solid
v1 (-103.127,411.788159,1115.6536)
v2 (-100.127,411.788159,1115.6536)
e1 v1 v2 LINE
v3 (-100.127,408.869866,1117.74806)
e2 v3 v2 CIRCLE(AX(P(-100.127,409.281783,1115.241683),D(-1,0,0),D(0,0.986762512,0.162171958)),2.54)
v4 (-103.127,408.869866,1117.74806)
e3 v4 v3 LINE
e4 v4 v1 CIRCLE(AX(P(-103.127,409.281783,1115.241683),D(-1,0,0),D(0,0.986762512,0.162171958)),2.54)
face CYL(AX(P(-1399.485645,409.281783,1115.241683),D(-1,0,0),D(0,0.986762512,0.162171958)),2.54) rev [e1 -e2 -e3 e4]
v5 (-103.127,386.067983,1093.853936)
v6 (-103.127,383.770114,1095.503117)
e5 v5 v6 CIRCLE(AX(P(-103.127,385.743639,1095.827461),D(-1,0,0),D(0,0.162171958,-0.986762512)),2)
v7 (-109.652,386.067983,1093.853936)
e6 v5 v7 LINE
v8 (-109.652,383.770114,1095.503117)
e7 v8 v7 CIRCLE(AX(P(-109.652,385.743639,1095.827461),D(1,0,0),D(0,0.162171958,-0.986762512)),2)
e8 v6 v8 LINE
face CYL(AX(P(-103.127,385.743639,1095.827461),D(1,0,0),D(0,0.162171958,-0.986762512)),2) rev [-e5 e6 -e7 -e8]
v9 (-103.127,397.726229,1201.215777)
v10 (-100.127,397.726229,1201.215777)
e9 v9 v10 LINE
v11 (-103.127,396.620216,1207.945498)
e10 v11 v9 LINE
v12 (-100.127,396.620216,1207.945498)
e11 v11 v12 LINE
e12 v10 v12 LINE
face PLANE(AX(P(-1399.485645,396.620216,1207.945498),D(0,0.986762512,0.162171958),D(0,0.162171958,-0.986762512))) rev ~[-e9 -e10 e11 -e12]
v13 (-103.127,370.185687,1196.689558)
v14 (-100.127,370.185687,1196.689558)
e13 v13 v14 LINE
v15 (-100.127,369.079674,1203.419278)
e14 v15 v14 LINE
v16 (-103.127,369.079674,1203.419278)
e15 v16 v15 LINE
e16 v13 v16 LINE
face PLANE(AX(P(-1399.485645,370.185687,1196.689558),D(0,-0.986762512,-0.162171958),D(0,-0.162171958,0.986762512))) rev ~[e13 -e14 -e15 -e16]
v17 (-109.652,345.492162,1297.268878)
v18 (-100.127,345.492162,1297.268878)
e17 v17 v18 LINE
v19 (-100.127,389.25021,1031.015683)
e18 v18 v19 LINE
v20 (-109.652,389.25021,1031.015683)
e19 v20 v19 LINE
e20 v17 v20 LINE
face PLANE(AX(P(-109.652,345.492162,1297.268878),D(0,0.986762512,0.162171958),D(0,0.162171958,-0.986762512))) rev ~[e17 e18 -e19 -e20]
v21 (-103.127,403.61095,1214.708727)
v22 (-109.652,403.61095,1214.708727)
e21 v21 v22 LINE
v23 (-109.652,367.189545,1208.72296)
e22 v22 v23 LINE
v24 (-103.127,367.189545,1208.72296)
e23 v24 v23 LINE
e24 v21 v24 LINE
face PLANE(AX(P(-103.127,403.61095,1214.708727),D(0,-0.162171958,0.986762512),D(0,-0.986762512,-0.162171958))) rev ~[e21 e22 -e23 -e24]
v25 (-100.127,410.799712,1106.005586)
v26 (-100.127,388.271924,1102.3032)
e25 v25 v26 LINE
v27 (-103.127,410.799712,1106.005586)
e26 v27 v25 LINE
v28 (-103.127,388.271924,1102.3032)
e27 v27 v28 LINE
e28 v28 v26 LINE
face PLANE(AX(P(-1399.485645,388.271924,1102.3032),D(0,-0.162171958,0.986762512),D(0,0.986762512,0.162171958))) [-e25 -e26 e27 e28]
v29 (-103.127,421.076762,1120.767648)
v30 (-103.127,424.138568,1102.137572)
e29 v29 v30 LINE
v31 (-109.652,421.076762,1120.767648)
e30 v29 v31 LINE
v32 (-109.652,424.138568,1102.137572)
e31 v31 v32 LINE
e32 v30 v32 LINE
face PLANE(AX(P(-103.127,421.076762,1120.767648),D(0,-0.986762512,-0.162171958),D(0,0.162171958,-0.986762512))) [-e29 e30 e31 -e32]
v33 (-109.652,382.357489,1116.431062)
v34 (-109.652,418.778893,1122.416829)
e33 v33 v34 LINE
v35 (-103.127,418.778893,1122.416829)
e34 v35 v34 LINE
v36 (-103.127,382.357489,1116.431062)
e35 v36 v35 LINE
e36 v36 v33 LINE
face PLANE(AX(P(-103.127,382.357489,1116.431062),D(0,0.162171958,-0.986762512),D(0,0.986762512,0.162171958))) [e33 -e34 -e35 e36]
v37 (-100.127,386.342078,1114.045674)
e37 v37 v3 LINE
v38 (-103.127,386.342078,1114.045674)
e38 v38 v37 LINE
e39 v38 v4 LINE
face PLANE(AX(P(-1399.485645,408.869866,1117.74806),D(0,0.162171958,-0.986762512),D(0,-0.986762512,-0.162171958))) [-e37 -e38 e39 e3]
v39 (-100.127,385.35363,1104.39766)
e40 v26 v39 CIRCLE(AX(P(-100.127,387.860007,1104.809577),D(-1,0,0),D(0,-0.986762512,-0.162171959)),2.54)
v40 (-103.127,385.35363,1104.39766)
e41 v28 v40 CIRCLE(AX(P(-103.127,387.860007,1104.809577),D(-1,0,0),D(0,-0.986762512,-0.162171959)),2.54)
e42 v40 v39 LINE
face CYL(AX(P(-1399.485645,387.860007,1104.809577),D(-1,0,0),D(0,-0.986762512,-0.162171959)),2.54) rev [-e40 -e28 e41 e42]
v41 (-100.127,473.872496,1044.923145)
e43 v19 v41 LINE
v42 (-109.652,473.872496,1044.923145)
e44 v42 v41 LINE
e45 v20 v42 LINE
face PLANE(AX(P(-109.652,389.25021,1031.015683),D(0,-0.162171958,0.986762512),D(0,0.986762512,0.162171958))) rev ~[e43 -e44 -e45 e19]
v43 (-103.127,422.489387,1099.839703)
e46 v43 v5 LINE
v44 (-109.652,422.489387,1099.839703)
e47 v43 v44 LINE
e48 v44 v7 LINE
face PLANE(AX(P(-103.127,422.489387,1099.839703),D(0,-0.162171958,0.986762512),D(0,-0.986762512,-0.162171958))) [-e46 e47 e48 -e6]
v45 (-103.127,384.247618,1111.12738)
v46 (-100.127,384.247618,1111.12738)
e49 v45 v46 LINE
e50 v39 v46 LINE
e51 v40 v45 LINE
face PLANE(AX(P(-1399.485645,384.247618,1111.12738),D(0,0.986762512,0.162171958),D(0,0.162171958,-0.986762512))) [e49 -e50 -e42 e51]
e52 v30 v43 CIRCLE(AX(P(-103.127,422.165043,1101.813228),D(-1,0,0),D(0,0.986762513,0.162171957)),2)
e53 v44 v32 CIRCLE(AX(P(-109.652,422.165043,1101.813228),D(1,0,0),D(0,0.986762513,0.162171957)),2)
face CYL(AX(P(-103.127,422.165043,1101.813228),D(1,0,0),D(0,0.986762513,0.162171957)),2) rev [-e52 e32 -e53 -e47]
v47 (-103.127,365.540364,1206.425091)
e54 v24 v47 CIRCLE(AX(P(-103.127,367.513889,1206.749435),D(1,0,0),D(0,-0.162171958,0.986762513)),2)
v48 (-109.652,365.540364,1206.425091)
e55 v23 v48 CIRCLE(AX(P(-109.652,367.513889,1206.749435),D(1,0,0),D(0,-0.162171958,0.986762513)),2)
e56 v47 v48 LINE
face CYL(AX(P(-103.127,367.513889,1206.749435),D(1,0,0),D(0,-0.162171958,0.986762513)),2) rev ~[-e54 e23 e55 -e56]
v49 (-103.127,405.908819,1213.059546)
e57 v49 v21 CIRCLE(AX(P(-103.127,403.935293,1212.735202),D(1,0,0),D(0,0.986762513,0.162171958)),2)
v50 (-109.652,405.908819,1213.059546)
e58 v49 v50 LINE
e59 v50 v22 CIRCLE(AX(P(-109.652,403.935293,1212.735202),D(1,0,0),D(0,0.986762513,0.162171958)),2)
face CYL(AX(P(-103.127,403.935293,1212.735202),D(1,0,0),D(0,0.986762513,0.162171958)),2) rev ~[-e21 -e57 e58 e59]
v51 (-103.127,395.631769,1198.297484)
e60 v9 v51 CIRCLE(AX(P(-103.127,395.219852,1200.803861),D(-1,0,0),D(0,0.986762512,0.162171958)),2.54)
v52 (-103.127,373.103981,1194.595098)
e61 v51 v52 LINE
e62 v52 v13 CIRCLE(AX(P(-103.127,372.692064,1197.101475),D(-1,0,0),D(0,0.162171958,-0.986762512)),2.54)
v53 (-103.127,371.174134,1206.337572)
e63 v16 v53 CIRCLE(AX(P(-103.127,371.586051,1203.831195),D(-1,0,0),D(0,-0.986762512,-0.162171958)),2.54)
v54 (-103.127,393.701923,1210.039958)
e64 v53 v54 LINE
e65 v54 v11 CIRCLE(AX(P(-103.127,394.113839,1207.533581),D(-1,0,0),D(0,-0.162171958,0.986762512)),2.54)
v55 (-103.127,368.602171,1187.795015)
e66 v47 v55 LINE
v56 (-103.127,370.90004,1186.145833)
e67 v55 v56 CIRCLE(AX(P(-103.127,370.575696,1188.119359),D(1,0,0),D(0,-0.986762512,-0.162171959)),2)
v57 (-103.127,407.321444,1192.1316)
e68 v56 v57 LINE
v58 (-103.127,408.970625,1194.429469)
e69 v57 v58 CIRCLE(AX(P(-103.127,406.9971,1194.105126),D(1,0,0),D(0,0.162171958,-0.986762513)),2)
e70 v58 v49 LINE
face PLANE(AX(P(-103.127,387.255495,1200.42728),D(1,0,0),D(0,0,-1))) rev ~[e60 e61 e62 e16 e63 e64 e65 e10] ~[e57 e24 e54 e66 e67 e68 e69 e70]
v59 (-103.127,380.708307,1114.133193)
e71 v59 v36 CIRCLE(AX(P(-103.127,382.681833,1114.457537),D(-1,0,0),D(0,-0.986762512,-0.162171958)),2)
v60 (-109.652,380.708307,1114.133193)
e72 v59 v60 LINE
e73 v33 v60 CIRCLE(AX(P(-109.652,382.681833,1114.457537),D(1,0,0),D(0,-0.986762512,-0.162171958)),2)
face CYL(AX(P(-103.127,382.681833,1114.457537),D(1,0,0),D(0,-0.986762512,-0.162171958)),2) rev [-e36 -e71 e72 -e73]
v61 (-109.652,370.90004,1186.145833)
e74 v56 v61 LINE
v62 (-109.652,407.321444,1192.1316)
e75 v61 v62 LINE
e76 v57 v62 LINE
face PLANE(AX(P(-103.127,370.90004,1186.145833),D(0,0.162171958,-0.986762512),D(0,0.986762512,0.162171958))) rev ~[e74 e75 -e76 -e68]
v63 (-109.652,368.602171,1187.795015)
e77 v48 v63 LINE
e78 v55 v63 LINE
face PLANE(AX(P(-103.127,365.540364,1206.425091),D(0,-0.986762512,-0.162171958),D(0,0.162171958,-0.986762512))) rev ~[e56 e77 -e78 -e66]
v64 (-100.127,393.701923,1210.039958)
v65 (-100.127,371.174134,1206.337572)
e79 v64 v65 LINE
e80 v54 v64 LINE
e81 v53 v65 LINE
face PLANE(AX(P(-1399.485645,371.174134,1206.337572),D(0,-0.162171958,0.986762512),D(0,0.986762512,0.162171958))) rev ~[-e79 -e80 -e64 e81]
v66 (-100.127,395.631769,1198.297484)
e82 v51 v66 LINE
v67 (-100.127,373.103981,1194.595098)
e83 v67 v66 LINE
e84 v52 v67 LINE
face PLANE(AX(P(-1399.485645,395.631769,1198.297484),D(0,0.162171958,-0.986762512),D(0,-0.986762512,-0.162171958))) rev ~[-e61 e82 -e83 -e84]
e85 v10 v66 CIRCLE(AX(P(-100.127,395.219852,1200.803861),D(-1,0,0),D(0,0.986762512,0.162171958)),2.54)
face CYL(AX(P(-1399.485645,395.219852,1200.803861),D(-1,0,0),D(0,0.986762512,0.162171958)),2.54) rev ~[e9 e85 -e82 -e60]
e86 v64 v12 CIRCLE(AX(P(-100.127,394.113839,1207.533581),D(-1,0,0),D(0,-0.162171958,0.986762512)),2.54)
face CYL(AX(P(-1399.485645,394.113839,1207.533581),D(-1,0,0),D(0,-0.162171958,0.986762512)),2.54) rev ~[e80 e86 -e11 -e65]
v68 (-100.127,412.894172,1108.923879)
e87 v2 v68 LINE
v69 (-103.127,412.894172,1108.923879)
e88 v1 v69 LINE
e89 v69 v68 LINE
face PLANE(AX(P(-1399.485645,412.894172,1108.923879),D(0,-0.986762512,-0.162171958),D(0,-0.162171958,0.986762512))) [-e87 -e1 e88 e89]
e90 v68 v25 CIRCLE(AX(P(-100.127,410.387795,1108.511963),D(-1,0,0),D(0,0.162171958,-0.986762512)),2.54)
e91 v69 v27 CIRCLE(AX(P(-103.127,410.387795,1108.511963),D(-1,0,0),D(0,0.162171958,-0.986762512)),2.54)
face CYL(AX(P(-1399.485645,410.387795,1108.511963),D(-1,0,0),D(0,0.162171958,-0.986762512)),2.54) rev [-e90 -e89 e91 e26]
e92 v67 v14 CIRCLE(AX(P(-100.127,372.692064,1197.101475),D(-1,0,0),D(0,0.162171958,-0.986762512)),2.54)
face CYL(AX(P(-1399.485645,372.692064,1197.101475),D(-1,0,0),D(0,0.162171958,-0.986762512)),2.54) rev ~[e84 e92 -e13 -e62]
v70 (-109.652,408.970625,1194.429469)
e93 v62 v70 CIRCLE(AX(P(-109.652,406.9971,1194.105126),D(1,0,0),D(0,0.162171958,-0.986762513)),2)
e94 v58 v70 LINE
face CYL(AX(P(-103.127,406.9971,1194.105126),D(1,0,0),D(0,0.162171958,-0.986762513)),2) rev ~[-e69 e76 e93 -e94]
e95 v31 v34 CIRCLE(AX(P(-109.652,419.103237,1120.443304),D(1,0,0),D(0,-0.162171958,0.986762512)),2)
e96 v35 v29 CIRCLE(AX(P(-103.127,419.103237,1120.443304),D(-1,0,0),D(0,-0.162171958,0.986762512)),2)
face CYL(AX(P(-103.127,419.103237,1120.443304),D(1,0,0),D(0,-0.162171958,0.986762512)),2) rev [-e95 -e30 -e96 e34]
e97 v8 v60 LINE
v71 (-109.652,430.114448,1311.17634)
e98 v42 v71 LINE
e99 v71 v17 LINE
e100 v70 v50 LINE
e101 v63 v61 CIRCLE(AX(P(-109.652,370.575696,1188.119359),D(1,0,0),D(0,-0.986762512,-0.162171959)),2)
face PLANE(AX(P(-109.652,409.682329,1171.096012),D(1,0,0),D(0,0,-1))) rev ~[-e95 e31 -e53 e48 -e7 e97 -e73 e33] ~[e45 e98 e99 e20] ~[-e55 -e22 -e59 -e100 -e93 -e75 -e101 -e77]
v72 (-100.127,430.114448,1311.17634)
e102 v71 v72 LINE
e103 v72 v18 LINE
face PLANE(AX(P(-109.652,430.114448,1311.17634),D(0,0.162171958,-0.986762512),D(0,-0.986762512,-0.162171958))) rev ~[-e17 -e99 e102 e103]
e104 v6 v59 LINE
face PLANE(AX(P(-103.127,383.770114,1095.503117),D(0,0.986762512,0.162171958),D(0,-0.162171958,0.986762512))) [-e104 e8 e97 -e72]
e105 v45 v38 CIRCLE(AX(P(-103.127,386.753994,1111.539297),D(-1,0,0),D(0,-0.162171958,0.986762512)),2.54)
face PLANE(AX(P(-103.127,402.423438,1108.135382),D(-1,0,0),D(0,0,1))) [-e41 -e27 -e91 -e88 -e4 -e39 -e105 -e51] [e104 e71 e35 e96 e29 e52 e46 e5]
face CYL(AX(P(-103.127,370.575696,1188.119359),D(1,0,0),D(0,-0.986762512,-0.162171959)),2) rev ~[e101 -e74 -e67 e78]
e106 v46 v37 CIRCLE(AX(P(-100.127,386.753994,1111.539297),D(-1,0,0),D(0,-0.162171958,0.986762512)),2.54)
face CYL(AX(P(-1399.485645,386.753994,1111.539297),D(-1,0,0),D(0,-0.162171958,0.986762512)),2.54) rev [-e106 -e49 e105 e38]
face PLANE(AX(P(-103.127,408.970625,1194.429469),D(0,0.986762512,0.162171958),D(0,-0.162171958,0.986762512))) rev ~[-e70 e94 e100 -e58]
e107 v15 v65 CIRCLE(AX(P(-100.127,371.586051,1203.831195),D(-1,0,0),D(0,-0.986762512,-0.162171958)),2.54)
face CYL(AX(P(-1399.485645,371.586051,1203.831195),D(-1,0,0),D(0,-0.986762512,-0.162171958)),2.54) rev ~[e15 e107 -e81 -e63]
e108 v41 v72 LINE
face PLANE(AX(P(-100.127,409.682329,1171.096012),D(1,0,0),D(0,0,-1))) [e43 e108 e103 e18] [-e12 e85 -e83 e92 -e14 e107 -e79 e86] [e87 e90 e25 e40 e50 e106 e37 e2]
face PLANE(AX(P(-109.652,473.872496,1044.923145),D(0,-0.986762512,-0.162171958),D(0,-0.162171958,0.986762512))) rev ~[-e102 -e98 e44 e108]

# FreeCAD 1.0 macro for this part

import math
import FreeCAD as App
import Part
import Sketcher

V = App.Vector
Q = App.Units.Quantity


def add_polygon(sketch, points):
    """Adds a closed chain of lines whose ends are joined by coincident constraints."""
    first, n = sketch.GeometryCount, len(points)
    for a, b in zip(points, points[1:] + points[:1]):
        sketch.addGeometry(Part.LineSegment(App.Vector(*a, 0), App.Vector(*b, 0)), False)
    for i in range(n):
        sketch.addConstraint(Sketcher.Constraint("Coincident", first + i, 2, first + (i + 1) % n, 1))

doc = App.newDocument("Part")
body = doc.addObject("PartDesign::Body", "Body")

# Sketch on YZ plane
sketch1 = doc.addObject("Sketcher::SketchObject", "Sketch")
body.addObject(sketch1)
sketch1.AttachmentSupport = (doc.YZ_Plane, [""])
sketch1.MapMode = "FlatFace"
sketch1.AttachmentOffset = App.Placement(V(0, 0, -109.652), App.Rotation())
add_polygon(sketch1, [(474, 1045), (430, 1311), (345, 1297), (389, 1031)])  # lines 0-3
sketch1.addConstraint(Sketcher.Constraint("Perpendicular", 0, 1))
sketch1.addConstraint(Sketcher.Constraint("Perpendicular", 1, 2))
sketch1.addConstraint(Sketcher.Constraint("Perpendicular", 2, 3))
sketch1.addConstraint(Sketcher.Constraint("Distance", 0, 269.825))
sketch1.addConstraint(Sketcher.Constraint("Distance", 1, 85.7575))
sketch1.addConstraint(Sketcher.Constraint("DistanceY", -1, 1, 0, 2, 1311.17634))
sketch1.addConstraint(Sketcher.Constraint("DistanceX", -1, 1, 1, 2, 345.492162))
sketch1.addConstraint(Sketcher.Constraint("DistanceY", -1, 1, 1, 2, 1297.268878))
pad1 = doc.addObject("PartDesign::Pad", "Pad")
body.addObject(pad1)
pad1.Profile = sketch1
pad1.Length = Q("0.375 in")

# Sketch on YZ plane
sketch2 = doc.addObject("Sketcher::SketchObject", "Sketch001")
body.addObject(sketch2)
sketch2.AttachmentSupport = (doc.YZ_Plane, [""])
sketch2.MapMode = "FlatFace"
sketch2.addGeometry(Part.LineSegment(V(412.9, 1108.9, 0), V(411.8, 1115.7, 0)), False)
sketch2.addGeometry(Part.ArcOfCircle(Part.Circle(V(409.3, 1115.2, 0), V(0, 0, 1), 2.5), math.radians(9), math.radians(99)), False)
sketch2.addGeometry(Part.LineSegment(V(408.9, 1117.7, 0), V(386.3, 1114, 0)), False)
sketch2.addGeometry(Part.ArcOfCircle(Part.Circle(V(386.8, 1111.5, 0), V(0, 0, 1), 2.5), math.radians(99), math.radians(189)), False)
sketch2.addGeometry(Part.LineSegment(V(384.2, 1111.1, 0), V(385.4, 1104.4, 0)), False)
sketch2.addGeometry(Part.ArcOfCircle(Part.Circle(V(387.9, 1104.8, 0), V(0, 0, 1), 2.5), math.radians(-171), math.radians(-81)), False)
sketch2.addGeometry(Part.LineSegment(V(388.3, 1102.3, 0), V(410.8, 1106, 0)), False)
sketch2.addGeometry(Part.ArcOfCircle(Part.Circle(V(410.4, 1108.5, 0), V(0, 0, 1), 2.5), math.radians(-81), math.radians(9)), False)
sketch2.addGeometry(Part.LineSegment(V(393.7, 1210, 0), V(371.2, 1206.3, 0)), False)
sketch2.addGeometry(Part.ArcOfCircle(Part.Circle(V(371.6, 1203.8, 0), V(0, 0, 1), 2.5), math.radians(99), math.radians(189)), False)
sketch2.addGeometry(Part.LineSegment(V(369.1, 1203.4, 0), V(370.2, 1196.7, 0)), False)
sketch2.addGeometry(Part.ArcOfCircle(Part.Circle(V(372.7, 1197.1, 0), V(0, 0, 1), 2.5), math.radians(-171), math.radians(-81)), False)
sketch2.addGeometry(Part.LineSegment(V(373.1, 1194.6, 0), V(395.6, 1198.3, 0)), False)
sketch2.addGeometry(Part.ArcOfCircle(Part.Circle(V(395.2, 1200.8, 0), V(0, 0, 1), 2.5), math.radians(-81), math.radians(9)), False)
sketch2.addGeometry(Part.LineSegment(V(397.7, 1201.2, 0), V(396.6, 1207.9, 0)), False)
sketch2.addGeometry(Part.ArcOfCircle(Part.Circle(V(394.1, 1207.5, 0), V(0, 0, 1), 2.5), math.radians(9), math.radians(99)), False)
sketch2.addConstraint(Sketcher.Constraint("Tangent", 0, 2, 1, 1))
sketch2.addConstraint(Sketcher.Constraint("Tangent", 1, 2, 2, 1))
sketch2.addConstraint(Sketcher.Constraint("Tangent", 2, 2, 3, 1))
sketch2.addConstraint(Sketcher.Constraint("Tangent", 3, 2, 4, 1))
sketch2.addConstraint(Sketcher.Constraint("Tangent", 4, 2, 5, 1))
sketch2.addConstraint(Sketcher.Constraint("Tangent", 5, 2, 6, 1))
sketch2.addConstraint(Sketcher.Constraint("Tangent", 6, 2, 7, 1))
sketch2.addConstraint(Sketcher.Constraint("Tangent", 7, 2, 0, 1))
sketch2.addConstraint(Sketcher.Constraint("Tangent", 8, 2, 9, 1))
sketch2.addConstraint(Sketcher.Constraint("Tangent", 9, 2, 10, 1))
sketch2.addConstraint(Sketcher.Constraint("Tangent", 10, 2, 11, 1))
sketch2.addConstraint(Sketcher.Constraint("Tangent", 11, 2, 12, 1))
sketch2.addConstraint(Sketcher.Constraint("Tangent", 12, 2, 13, 1))
sketch2.addConstraint(Sketcher.Constraint("Tangent", 13, 2, 14, 1))
sketch2.addConstraint(Sketcher.Constraint("Tangent", 14, 2, 15, 1))
sketch2.addConstraint(Sketcher.Constraint("Tangent", 15, 2, 8, 1))
sketch2.addConstraint(Sketcher.Constraint("Equal", 1, 3))
sketch2.addConstraint(Sketcher.Constraint("Equal", 3, 5))
sketch2.addConstraint(Sketcher.Constraint("Equal", 5, 7))
sketch2.addConstraint(Sketcher.Constraint("Equal", 7, 9))
sketch2.addConstraint(Sketcher.Constraint("Equal", 9, 11))
sketch2.addConstraint(Sketcher.Constraint("Equal", 11, 13))
sketch2.addConstraint(Sketcher.Constraint("Equal", 13, 15))
sketch2.addConstraint(Sketcher.Constraint("Perpendicular", 0, 2))
sketch2.addConstraint(Sketcher.Constraint("Perpendicular", 2, 4))
sketch2.addConstraint(Sketcher.Constraint("Perpendicular", 4, 6))
sketch2.addConstraint(Sketcher.Constraint("Parallel", 6, 8))
sketch2.addConstraint(Sketcher.Constraint("Perpendicular", 8, 10))
sketch2.addConstraint(Sketcher.Constraint("Perpendicular", 10, 12))
sketch2.addConstraint(Sketcher.Constraint("Perpendicular", 12, 14))
sketch2.addConstraint(Sketcher.Constraint("Equal", 6, 8))
sketch2.addConstraint(Sketcher.Constraint("Equal", 4, 10))
sketch2.addConstraint(Sketcher.Constraint("Radius", 1, Q("0.1 in")))
sketch2.addConstraint(Sketcher.Constraint("DistanceX", -1, 1, 7, 3, Q("16.1569998 in")))
sketch2.addConstraint(Sketcher.Constraint("Distance", 0, 6.82))
sketch2.addConstraint(Sketcher.Constraint("Distance", 2, 22.83))
sketch2.addConstraint(Sketcher.Constraint("DistanceY", -1, 1, 0, 2, 1115.6536))
sketch2.addConstraint(Sketcher.Constraint("DistanceY", -1, 1, 5, 2, 1102.3032))
sketch2.addConstraint(Sketcher.Constraint("DistanceX", -1, 1, 9, 3, 371.586051))
sketch2.addConstraint(Sketcher.Constraint("DistanceY", -1, 1, 13, 3, 1200.803861))
pocket1 = doc.addObject("PartDesign::Pocket", "Pocket")
body.addObject(pocket1)
pocket1.Profile = sketch2
pocket1.Type = "ThroughAll"
pocket1.Midplane = True

# Sketch on YZ plane
sketch3 = doc.addObject("Sketcher::SketchObject", "Sketch002")
body.addObject(sketch3)
sketch3.AttachmentSupport = (doc.YZ_Plane, [""])
sketch3.MapMode = "FlatFace"
sketch3.AttachmentOffset = App.Placement(V(0, 0, -103.127), App.Rotation())
sketch3.addGeometry(Part.LineSegment(V(380.7, 1114.1, 0), V(383.8, 1095.5, 0)), False)
sketch3.addGeometry(Part.ArcOfCircle(Part.Circle(V(385.7, 1095.8, 0), V(0, 0, 1), 2), math.radians(-171), math.radians(-81)), False)
sketch3.addGeometry(Part.LineSegment(V(386.1, 1093.9, 0), V(422.5, 1099.8, 0)), False)
sketch3.addGeometry(Part.ArcOfCircle(Part.Circle(V(422.2, 1101.8, 0), V(0, 0, 1), 2), math.radians(-81), math.radians(9)), False)
sketch3.addGeometry(Part.LineSegment(V(424.1, 1102.1, 0), V(421.1, 1120.8, 0)), False)
sketch3.addGeometry(Part.ArcOfCircle(Part.Circle(V(419.1, 1120.4, 0), V(0, 0, 1), 2), math.radians(9), math.radians(99)), False)
sketch3.addGeometry(Part.LineSegment(V(418.8, 1122.4, 0), V(382.4, 1116.4, 0)), False)
sketch3.addGeometry(Part.ArcOfCircle(Part.Circle(V(382.7, 1114.5, 0), V(0, 0, 1), 2), math.radians(99), math.radians(189)), False)
sketch3.addGeometry(Part.LineSegment(V(409, 1194.4, 0), V(405.9, 1213.1, 0)), False)
sketch3.addGeometry(Part.ArcOfCircle(Part.Circle(V(403.9, 1212.7, 0), V(0, 0, 1), 2), math.radians(9), math.radians(99)), False)
sketch3.addGeometry(Part.LineSegment(V(403.6, 1214.7, 0), V(367.2, 1208.7, 0)), False)
sketch3.addGeometry(Part.ArcOfCircle(Part.Circle(V(367.5, 1206.7, 0), V(0, 0, 1), 2), math.radians(99), math.radians(189)), False)
sketch3.addGeometry(Part.LineSegment(V(365.5, 1206.4, 0), V(368.6, 1187.8, 0)), False)
sketch3.addGeometry(Part.ArcOfCircle(Part.Circle(V(370.6, 1188.1, 0), V(0, 0, 1), 2), math.radians(-171), math.radians(-81)), False)
sketch3.addGeometry(Part.LineSegment(V(370.9, 1186.1, 0), V(407.3, 1192.1, 0)), False)
sketch3.addGeometry(Part.ArcOfCircle(Part.Circle(V(407, 1194.1, 0), V(0, 0, 1), 2), math.radians(-81), math.radians(9)), False)
sketch3.addConstraint(Sketcher.Constraint("Tangent", 0, 2, 1, 1))
sketch3.addConstraint(Sketcher.Constraint("Tangent", 1, 2, 2, 1))
sketch3.addConstraint(Sketcher.Constraint("Tangent", 2, 2, 3, 1))
sketch3.addConstraint(Sketcher.Constraint("Tangent", 3, 2, 4, 1))
sketch3.addConstraint(Sketcher.Constraint("Tangent", 4, 2, 5, 1))
sketch3.addConstraint(Sketcher.Constraint("Tangent", 5, 2, 6, 1))
sketch3.addConstraint(Sketcher.Constraint("Tangent", 6, 2, 7, 1))
sketch3.addConstraint(Sketcher.Constraint("Tangent", 7, 2, 0, 1))
sketch3.addConstraint(Sketcher.Constraint("Tangent", 8, 2, 9, 1))
sketch3.addConstraint(Sketcher.Constraint("Tangent", 9, 2, 10, 1))
sketch3.addConstraint(Sketcher.Constraint("Tangent", 10, 2, 11, 1))
sketch3.addConstraint(Sketcher.Constraint("Tangent", 11, 2, 12, 1))
sketch3.addConstraint(Sketcher.Constraint("Tangent", 12, 2, 13, 1))
sketch3.addConstraint(Sketcher.Constraint("Tangent", 13, 2, 14, 1))
sketch3.addConstraint(Sketcher.Constraint("Tangent", 14, 2, 15, 1))
sketch3.addConstraint(Sketcher.Constraint("Tangent", 15, 2, 8, 1))
sketch3.addConstraint(Sketcher.Constraint("Equal", 1, 3))
sketch3.addConstraint(Sketcher.Constraint("Equal", 3, 5))
sketch3.addConstraint(Sketcher.Constraint("Equal", 5, 7))
sketch3.addConstraint(Sketcher.Constraint("Equal", 7, 9))
sketch3.addConstraint(Sketcher.Constraint("Equal", 9, 11))
sketch3.addConstraint(Sketcher.Constraint("Equal", 11, 13))
sketch3.addConstraint(Sketcher.Constraint("Equal", 13, 15))
sketch3.addConstraint(Sketcher.Constraint("Perpendicular", 0, 2))
sketch3.addConstraint(Sketcher.Constraint("Perpendicular", 2, 4))
sketch3.addConstraint(Sketcher.Constraint("Perpendicular", 4, 6))
sketch3.addConstraint(Sketcher.Constraint("Perpendicular", 6, 8))
sketch3.addConstraint(Sketcher.Constraint("Perpendicular", 8, 10))
sketch3.addConstraint(Sketcher.Constraint("Perpendicular", 10, 12))
sketch3.addConstraint(Sketcher.Constraint("Perpendicular", 12, 14))
sketch3.addConstraint(Sketcher.Constraint("Equal", 4, 8))
sketch3.addConstraint(Sketcher.Constraint("Equal", 6, 10))
sketch3.addConstraint(Sketcher.Constraint("Radius", 1, 2.0))
sketch3.addConstraint(Sketcher.Constraint("Distance", 0, 18.88))
sketch3.addConstraint(Sketcher.Constraint("Distance", 2, 36.91))
sketch3.addConstraint(Sketcher.Constraint("DistanceY", -1, 1, 9, 3, 1212.735202))
sketch3.addConstraint(Sketcher.Constraint("DistanceX", -1, 1, 15, 3, 406.9971))
sketch3.addConstraint(Sketcher.Constraint("DistanceY", -1, 1, 14, 2, 1192.1316))
sketch3.addConstraint(Sketcher.Constraint("DistanceX", -1, 1, 1, 3, 385.743639))
sketch3.addConstraint(Sketcher.Constraint("DistanceY", -1, 1, 1, 3, 1095.827461))
pocket2 = doc.addObject("PartDesign::Pocket", "Pocket001")
body.addObject(pocket2)
pocket2.Profile = sketch3
pocket2.Type = "ThroughAll"

doc.recompute()
